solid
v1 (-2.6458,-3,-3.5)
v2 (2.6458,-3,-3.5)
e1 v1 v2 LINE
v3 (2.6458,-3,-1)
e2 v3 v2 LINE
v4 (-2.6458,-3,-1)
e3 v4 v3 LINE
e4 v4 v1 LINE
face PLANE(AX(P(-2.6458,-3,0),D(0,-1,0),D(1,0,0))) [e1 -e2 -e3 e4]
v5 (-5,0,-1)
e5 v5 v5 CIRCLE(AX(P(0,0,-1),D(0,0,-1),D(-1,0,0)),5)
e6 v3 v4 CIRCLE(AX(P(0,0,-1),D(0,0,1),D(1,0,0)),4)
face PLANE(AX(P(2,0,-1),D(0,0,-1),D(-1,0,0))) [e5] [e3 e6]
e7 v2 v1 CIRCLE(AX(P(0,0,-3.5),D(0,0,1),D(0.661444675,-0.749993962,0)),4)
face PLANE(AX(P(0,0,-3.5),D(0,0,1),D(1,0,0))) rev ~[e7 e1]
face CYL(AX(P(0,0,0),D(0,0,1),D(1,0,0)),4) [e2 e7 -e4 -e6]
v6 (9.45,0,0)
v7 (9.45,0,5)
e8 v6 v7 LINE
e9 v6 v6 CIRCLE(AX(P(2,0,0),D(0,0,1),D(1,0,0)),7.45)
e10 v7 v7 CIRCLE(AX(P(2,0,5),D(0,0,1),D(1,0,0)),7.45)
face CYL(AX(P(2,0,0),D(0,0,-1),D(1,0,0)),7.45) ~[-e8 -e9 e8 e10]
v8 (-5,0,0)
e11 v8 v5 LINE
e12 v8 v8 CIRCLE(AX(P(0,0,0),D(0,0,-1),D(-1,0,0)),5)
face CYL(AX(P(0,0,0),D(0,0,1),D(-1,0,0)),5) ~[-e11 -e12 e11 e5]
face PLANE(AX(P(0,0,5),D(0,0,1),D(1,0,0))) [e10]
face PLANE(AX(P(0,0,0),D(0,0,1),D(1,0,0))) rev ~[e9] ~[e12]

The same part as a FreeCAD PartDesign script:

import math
import FreeCAD as App
import Part
import Sketcher
Q = App.Units.Quantity

doc = App.newDocument("Part")
body = doc.addObject("PartDesign::Body", "Body")

sketch1 = body.newObject("Sketcher::SketchObject", "Sketch")
sketch1.AttachmentSupport = (doc.getObject("XY_Plane"), [""])
sketch1.MapMode = "FlatFace"
sketch1.addGeometry(Part.Circle(App.Vector(2, 0, 0), App.Vector(0, 0, 1), 7.45), False)
sketch1.addConstraint([
    Sketcher.Constraint("PointOnObject", 0, 3, -1),
    Sketcher.Constraint("Diameter", 0, Q("14.9 mm")),
    Sketcher.Constraint("DistanceX", -1, 1, 0, 3, Q("2 mm")),
])
pad1 = body.newObject("PartDesign::Pad", "Pad")
pad1.Profile = sketch1
pad1.Length = 5

sketch2 = body.newObject("Sketcher::SketchObject", "Sketch001")
sketch2.AttachmentSupport = (doc.getObject("XY_Plane"), [""])
sketch2.MapMode = "FlatFace"
sketch2.addGeometry([
    Part.ArcOfCircle(Part.Circle(App.Vector(0, 0, 0), App.Vector(0, 0, 1), 4), math.radians(-48.589855), math.radians(228.589855)),
    Part.LineSegment(App.Vector(2.6458, -3, 0), App.Vector(-2.6458, -3, 0)),
], False)
sketch2.addConstraint([
    Sketcher.Constraint("Coincident", 0, 1, 1, 1),
    Sketcher.Constraint("Coincident", 1, 2, 0, 2),
    Sketcher.Constraint("Horizontal", 1),
    Sketcher.Constraint("Coincident", 0, 3, -1, 1),
    Sketcher.Constraint("Radius", 0, Q("4 mm")),
    Sketcher.Constraint("DistanceY", 0, 1, -1, 1, Q("3 mm")),
])
pad2 = body.newObject("PartDesign::Pad", "Pad001")
pad2.Profile = sketch2
pad2.Length = 3.5
pad2.Reversed = True

sketch3 = body.newObject("Sketcher::SketchObject", "Sketch002")
sketch3.AttachmentSupport = (doc.getObject("XY_Plane"), [""])
sketch3.MapMode = "FlatFace"
sketch3.addGeometry(Part.Circle(App.Vector(0, 0, 0), App.Vector(0, 0, 1), 5), False)
sketch3.addConstraint([
    Sketcher.Constraint("Coincident", 0, 3, -1, 1),
    Sketcher.Constraint("Diameter", 0, Q("10 mm")),
])
pad3 = body.newObject("PartDesign::Pad", "Pad002")
pad3.Profile = sketch3
pad3.Length = 1
pad3.Reversed = True

doc.recompute()
